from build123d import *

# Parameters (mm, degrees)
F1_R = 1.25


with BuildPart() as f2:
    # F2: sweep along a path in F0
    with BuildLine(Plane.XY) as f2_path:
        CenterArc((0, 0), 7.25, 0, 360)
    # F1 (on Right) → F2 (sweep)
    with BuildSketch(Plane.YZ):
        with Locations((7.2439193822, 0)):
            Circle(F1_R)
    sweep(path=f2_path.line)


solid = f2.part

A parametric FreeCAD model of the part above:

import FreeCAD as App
import Part
import Sketcher
from FreeCAD import Vector
Q = App.Units.Quantity

doc = App.newDocument("Part")
params = doc.addObject("Spreadsheet::Sheet", "Params")
for row, (alias, value) in enumerate([
    ("sketch1_diameter", "2.5 mm"),
    ("sketch2_diameter", "14.5 mm"),
], start=1):
    params.set(f"A{row}", alias)
    params.set(f"B{row}", "=" + value)
    params.setAlias(f"B{row}", alias)

body = doc.addObject("PartDesign::Body", "Body")

# Sketch on YZ plane
sketch1 = body.newObject("Sketcher::SketchObject", "Sketch")
sketch1.AttachmentSupport = (doc.getObject("YZ_Plane"), [""])
sketch1.MapMode = "FlatFace"
sketch1.addGeometry(Part.Circle(Vector(7.243919, 0, 0), Vector(0, 0, 1), 1.25), False)
sketch1.addConstraint(Sketcher.Constraint("PointOnObject", 0, 3, -1))
sketch1.addConstraint(Sketcher.Constraint("Diameter", 0, Q("2.5 mm")))
sketch1.addConstraint(Sketcher.Constraint("DistanceX", -1, 1, 0, 3, Q("7.243919 mm")))
sketch1.setExpression("Constraints[1]", "Params.sketch1_diameter")

# Sketch on XY plane
sketch2 = body.newObject("Sketcher::SketchObject", "Sketch001")
sketch2.AttachmentSupport = (doc.getObject("XY_Plane"), [""])
sketch2.MapMode = "FlatFace"
sketch2.addGeometry(Part.Circle(Vector(0, 0, 0), Vector(0, 0, 1), 7.25), False)
sketch2.addConstraint(Sketcher.Constraint("Coincident", 0, 3, -1, 1))
sketch2.addConstraint(Sketcher.Constraint("Diameter", 0, Q("14.5 mm")))
sketch2.setExpression("Constraints[1]", "Params.sketch2_diameter")
doc.recompute()

additivepipe = body.newObject("PartDesign::AdditivePipe", "AdditivePipe")
additivepipe.Profile = sketch1
additivepipe.Spine = (sketch2, ["Edge1"])

doc.recompute()
